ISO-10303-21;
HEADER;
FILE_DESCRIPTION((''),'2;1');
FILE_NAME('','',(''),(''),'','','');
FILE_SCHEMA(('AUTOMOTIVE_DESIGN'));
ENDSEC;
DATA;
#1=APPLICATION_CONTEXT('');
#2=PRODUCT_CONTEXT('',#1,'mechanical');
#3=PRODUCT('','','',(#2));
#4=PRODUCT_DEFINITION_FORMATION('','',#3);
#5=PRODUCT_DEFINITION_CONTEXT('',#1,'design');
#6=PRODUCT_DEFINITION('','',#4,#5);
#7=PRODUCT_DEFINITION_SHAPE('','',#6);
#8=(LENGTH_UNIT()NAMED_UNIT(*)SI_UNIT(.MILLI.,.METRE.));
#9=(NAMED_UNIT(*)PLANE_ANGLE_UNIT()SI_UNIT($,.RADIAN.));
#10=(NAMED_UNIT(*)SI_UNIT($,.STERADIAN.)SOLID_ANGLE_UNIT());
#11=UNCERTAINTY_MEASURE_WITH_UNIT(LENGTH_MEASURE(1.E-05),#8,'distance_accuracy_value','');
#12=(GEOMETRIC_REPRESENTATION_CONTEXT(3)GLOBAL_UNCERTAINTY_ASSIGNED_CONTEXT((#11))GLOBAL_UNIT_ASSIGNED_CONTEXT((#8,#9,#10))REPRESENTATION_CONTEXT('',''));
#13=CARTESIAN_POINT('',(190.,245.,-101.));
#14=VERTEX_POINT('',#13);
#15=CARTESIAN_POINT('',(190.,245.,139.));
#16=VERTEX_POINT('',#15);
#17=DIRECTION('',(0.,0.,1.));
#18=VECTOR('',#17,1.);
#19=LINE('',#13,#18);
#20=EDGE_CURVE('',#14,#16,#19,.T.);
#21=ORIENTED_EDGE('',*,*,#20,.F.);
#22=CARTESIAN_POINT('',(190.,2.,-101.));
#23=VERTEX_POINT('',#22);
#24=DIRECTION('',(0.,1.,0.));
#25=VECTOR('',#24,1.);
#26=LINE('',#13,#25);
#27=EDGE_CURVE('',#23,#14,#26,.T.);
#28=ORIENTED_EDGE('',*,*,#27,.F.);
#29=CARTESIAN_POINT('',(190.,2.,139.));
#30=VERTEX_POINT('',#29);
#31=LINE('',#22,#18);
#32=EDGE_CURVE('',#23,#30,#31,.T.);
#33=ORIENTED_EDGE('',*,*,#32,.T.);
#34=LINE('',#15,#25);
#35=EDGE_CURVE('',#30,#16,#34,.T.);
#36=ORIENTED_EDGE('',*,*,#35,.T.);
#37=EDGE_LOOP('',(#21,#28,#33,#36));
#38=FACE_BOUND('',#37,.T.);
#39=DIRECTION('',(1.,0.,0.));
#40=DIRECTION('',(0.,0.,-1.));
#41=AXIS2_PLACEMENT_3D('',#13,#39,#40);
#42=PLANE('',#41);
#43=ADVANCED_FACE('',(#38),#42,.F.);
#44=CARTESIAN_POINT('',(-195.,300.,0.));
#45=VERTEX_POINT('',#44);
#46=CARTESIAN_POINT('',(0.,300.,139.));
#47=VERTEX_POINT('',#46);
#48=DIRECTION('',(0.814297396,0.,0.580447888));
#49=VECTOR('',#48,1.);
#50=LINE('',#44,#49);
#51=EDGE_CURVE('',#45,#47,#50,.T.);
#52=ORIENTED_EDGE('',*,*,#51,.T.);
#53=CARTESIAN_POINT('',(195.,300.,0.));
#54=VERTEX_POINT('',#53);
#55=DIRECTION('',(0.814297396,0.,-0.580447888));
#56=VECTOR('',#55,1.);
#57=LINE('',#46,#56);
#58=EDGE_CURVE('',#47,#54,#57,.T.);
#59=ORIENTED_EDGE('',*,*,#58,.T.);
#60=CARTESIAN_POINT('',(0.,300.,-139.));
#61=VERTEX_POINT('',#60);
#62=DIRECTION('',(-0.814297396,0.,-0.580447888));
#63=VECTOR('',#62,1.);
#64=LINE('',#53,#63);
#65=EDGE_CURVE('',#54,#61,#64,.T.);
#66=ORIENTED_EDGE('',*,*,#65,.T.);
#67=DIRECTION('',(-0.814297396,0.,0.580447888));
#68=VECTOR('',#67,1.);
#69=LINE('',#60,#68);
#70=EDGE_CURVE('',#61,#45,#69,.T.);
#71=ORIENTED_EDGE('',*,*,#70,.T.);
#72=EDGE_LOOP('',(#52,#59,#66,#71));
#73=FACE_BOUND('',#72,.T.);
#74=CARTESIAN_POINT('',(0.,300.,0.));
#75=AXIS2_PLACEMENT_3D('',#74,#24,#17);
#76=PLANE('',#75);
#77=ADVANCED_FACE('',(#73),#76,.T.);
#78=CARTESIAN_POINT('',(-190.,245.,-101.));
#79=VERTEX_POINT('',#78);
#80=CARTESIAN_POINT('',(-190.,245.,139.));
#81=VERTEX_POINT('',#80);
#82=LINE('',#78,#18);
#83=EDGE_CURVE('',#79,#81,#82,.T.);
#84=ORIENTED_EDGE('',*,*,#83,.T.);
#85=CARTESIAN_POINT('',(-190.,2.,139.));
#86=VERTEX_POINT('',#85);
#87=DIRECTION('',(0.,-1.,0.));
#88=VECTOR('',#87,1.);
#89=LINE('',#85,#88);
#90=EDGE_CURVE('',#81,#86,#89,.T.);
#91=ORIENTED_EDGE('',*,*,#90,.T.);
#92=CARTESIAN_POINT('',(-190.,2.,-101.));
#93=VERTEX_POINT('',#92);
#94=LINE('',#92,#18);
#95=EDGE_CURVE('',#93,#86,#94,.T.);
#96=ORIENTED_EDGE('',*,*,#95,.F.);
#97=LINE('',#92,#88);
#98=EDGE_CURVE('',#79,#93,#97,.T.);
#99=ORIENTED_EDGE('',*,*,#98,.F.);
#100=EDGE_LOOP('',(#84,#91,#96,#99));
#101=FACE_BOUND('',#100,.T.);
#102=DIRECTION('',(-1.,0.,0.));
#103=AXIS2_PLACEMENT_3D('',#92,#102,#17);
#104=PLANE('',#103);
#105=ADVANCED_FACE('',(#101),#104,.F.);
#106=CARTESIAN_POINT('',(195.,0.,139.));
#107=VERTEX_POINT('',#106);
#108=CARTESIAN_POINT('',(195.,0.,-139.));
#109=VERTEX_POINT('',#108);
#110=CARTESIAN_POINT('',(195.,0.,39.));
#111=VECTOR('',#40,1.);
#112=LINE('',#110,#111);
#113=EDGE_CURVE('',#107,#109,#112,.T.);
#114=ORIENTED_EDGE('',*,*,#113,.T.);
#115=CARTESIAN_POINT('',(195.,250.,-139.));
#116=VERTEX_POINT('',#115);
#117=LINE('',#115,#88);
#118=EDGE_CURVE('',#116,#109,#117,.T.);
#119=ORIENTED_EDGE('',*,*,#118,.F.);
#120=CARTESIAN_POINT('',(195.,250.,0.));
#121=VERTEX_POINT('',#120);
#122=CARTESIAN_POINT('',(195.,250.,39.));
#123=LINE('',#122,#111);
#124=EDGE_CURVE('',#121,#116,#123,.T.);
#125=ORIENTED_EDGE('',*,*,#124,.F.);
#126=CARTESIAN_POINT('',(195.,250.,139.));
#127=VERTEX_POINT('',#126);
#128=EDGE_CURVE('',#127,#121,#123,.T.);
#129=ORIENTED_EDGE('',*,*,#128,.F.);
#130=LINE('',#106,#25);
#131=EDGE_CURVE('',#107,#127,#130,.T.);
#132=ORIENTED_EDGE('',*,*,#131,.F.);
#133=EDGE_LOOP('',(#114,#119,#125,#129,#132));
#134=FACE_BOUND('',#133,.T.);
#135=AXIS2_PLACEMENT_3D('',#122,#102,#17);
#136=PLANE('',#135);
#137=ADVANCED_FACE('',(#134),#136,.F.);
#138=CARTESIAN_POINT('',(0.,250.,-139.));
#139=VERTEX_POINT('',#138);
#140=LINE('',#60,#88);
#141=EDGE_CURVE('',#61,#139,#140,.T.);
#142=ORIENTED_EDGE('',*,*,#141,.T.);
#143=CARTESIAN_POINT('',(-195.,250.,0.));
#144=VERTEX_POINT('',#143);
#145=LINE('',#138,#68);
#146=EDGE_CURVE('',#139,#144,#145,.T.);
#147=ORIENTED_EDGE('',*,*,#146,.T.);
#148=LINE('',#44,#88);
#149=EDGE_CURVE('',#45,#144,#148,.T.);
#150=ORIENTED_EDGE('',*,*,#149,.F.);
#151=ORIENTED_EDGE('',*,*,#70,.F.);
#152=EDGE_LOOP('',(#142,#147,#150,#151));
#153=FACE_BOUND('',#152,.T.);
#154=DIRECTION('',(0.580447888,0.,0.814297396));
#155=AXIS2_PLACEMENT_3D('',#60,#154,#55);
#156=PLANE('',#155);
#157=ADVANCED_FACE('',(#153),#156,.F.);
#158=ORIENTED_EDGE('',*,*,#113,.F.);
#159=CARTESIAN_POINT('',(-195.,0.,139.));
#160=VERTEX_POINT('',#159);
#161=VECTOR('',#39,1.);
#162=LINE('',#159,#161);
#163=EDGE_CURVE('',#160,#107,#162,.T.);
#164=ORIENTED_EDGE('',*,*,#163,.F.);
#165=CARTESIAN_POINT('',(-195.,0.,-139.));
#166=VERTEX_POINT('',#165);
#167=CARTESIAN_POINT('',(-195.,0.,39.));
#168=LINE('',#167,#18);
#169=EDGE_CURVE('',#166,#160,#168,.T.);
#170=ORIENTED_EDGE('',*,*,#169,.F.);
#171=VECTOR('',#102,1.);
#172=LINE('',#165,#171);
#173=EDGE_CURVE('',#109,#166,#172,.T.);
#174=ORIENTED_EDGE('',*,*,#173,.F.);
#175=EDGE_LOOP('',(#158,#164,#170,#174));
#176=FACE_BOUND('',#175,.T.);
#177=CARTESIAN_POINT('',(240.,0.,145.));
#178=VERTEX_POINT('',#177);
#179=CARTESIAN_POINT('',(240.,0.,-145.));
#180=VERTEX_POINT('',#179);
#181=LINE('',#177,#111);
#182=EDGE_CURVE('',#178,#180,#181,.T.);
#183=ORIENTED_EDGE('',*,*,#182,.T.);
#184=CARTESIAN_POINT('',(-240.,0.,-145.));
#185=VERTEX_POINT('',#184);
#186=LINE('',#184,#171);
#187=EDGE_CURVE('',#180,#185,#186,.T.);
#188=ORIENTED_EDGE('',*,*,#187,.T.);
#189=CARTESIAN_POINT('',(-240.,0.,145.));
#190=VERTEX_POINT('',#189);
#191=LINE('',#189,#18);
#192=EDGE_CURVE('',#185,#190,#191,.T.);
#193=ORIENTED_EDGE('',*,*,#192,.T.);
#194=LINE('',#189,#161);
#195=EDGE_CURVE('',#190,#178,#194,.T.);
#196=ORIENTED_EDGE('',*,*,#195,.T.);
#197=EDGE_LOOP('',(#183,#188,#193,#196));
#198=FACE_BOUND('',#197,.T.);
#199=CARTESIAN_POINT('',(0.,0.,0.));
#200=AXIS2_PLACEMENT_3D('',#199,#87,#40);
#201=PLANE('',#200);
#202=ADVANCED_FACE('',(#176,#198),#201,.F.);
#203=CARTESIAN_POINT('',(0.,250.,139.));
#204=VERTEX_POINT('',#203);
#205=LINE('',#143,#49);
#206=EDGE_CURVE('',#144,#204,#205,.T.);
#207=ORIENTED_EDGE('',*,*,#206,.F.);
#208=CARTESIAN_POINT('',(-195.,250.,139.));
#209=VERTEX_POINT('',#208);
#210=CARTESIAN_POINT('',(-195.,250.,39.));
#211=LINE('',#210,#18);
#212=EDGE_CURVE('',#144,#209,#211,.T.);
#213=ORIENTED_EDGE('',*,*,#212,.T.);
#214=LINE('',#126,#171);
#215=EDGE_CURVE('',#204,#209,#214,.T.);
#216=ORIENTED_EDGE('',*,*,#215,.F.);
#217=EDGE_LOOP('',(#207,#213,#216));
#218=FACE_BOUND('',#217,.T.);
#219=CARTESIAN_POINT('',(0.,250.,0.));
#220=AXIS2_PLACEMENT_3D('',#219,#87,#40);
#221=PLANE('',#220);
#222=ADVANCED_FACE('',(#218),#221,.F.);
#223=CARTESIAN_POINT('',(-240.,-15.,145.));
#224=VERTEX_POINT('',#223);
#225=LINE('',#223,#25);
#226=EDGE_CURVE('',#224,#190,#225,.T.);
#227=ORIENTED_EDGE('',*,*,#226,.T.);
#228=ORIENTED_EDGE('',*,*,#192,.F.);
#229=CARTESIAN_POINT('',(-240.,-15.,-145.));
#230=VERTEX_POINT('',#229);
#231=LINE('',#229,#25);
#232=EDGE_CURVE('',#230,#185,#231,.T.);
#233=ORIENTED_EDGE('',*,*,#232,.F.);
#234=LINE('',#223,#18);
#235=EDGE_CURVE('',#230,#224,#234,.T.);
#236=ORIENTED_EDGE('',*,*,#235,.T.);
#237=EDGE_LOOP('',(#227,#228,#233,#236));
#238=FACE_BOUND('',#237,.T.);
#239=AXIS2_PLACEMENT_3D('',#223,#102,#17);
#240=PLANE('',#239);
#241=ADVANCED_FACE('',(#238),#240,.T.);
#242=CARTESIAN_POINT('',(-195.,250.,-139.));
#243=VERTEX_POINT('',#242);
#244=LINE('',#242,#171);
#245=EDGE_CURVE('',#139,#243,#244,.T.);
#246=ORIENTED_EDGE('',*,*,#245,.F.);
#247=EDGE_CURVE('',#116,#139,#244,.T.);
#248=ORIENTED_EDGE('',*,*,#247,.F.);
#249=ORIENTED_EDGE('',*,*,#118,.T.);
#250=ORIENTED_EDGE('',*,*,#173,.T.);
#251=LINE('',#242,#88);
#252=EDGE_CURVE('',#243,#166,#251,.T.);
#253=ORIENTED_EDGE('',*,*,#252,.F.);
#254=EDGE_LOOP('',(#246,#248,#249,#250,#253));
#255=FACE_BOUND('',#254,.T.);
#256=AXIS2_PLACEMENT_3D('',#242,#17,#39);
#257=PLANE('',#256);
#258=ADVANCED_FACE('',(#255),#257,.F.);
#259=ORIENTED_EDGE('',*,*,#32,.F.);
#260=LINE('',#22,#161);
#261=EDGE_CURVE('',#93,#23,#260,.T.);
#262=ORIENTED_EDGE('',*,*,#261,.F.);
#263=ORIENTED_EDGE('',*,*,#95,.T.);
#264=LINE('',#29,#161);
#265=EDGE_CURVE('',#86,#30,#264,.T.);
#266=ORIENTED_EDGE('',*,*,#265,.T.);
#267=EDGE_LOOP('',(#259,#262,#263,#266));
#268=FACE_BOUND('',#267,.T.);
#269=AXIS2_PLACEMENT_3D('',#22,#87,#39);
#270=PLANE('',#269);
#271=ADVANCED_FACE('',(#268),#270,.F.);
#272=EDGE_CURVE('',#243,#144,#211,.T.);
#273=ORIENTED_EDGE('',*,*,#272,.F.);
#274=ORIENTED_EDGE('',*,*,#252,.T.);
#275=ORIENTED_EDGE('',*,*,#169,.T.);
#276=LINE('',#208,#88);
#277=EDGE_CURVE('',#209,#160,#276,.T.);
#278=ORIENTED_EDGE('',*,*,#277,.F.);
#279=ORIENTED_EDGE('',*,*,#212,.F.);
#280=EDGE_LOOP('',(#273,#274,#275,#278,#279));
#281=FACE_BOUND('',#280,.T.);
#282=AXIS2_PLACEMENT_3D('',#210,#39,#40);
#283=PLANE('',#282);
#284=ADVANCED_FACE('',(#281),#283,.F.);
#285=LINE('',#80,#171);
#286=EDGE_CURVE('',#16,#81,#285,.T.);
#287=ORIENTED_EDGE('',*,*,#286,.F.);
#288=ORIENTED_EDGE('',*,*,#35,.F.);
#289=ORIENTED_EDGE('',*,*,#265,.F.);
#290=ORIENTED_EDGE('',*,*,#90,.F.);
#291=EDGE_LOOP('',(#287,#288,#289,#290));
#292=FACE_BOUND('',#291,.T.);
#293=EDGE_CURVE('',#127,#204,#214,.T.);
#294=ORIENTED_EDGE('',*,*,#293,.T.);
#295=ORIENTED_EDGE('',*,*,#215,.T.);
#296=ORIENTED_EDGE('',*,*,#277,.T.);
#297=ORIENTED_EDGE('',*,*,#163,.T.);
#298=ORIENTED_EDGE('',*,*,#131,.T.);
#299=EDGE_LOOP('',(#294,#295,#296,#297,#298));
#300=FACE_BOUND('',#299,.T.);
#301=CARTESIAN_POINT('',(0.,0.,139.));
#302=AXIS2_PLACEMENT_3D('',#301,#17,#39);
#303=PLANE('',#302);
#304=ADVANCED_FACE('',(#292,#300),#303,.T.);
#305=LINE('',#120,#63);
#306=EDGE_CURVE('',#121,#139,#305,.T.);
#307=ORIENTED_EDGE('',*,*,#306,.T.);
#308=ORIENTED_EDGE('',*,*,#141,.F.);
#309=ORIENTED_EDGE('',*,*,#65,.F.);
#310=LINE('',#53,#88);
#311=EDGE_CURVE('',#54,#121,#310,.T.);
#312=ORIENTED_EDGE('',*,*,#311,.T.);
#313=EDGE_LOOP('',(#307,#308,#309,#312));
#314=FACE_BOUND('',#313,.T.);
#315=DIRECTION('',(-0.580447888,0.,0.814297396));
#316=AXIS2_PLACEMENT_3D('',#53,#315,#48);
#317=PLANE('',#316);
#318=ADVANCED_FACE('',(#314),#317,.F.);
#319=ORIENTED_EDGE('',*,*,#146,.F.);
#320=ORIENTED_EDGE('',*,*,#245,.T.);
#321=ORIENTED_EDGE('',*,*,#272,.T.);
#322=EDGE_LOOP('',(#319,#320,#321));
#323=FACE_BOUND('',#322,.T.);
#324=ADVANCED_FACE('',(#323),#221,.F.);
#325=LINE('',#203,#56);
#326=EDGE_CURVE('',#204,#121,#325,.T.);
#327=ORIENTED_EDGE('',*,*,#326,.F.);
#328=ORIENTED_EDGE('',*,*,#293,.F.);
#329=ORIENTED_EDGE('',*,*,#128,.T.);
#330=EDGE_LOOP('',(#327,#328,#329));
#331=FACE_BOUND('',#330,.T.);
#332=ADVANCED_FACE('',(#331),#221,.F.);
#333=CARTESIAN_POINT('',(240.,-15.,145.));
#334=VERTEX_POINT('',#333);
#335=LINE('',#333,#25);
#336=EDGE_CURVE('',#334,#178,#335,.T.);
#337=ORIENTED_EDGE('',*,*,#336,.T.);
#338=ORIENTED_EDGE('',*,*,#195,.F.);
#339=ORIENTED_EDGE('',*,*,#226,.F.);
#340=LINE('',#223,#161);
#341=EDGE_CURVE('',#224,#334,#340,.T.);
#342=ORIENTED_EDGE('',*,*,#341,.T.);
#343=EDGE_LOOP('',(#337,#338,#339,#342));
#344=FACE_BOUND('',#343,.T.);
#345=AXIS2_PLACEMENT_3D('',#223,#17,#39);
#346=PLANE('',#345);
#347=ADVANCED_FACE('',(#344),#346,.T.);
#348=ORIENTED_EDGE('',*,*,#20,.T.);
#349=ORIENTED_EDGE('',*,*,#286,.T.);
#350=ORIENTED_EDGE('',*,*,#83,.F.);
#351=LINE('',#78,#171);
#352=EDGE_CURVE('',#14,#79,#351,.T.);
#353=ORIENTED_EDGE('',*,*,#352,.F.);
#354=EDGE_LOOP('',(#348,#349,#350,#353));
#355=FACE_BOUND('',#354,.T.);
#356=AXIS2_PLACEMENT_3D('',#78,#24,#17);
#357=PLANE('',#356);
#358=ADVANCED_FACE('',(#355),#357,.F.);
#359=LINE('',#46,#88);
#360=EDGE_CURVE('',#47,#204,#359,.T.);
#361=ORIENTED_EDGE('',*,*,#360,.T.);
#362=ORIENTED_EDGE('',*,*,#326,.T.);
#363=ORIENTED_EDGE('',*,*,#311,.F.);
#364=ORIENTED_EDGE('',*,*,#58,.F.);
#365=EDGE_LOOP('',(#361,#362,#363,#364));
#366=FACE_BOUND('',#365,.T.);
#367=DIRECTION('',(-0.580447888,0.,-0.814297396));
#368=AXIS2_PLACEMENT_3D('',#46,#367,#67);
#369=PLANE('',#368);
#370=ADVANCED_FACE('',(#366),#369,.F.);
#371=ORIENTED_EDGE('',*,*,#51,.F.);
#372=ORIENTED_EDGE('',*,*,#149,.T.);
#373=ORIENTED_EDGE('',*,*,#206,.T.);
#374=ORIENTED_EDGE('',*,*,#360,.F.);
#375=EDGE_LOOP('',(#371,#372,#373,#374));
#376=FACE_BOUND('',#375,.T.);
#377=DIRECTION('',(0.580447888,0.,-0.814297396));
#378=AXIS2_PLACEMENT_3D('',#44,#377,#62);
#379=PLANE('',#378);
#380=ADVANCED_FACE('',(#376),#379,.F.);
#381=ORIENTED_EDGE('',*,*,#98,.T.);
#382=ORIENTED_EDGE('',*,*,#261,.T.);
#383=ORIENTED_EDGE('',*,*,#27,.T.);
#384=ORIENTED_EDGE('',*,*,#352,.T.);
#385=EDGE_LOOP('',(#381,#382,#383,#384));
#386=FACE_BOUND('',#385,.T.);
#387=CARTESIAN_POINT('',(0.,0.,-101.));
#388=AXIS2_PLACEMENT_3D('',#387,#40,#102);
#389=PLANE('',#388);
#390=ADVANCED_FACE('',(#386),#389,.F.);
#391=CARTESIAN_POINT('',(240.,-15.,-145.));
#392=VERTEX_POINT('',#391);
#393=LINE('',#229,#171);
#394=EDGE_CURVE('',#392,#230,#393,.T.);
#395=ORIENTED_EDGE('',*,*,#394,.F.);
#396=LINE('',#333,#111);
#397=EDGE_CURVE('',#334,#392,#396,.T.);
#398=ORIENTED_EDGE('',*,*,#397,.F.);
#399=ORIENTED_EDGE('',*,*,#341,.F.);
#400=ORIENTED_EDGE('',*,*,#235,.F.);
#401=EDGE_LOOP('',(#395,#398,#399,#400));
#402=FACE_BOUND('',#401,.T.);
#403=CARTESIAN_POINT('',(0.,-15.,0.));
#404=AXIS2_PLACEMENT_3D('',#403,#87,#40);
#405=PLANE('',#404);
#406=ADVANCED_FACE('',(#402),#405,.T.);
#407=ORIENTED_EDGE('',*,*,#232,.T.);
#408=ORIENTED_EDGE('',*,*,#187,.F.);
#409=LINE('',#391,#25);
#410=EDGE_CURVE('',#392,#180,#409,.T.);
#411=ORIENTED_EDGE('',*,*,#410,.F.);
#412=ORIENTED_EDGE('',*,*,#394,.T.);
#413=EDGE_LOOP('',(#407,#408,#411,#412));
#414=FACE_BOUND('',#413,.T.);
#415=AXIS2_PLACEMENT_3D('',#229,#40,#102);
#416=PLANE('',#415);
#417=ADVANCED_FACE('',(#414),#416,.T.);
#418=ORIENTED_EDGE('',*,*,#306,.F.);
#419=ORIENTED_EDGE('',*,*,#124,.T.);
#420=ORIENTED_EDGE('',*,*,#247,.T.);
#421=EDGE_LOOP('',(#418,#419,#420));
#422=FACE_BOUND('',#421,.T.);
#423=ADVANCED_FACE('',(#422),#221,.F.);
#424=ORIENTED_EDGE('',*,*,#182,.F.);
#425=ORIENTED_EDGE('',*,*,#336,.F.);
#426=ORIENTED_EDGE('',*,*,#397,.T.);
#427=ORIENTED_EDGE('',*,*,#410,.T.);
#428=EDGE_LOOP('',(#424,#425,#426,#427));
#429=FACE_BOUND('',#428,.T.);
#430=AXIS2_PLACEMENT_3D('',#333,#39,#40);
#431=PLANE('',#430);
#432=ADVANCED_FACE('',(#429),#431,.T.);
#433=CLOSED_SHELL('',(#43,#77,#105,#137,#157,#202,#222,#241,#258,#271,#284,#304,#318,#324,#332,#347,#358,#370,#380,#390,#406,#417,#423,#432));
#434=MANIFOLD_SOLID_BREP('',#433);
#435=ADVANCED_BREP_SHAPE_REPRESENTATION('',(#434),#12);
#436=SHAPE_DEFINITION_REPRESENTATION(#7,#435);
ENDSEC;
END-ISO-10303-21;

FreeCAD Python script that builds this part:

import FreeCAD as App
import Part
import Sketcher

V = App.Vector
Q = App.Units.Quantity

doc = App.newDocument("Part")
body = doc.addObject("PartDesign::Body", "Body")

# Sketch on XZ plane
sketch1 = body.newObject("Sketcher::SketchObject", "Sketch")
sketch1.AttachmentSupport = (doc.getObject("XZ_Plane"), [""])
sketch1.MapMode = "FlatFace"
sketch1.addGeometry([
    Part.LineSegment(V(-240, -145, 0), V(-240, 145, 0)),
    Part.LineSegment(V(-240, 145, 0), V(240, 145, 0)),
    Part.LineSegment(V(240, 145, 0), V(240, -145, 0)),
    Part.LineSegment(V(240, -145, 0), V(-240, -145, 0)),
], False)
sketch1.addConstraint([
    Sketcher.Constraint("Coincident", 0, 2, 1, 1),
    Sketcher.Constraint("Coincident", 1, 2, 2, 1),
    Sketcher.Constraint("Coincident", 2, 2, 3, 1),
    Sketcher.Constraint("Coincident", 3, 2, 0, 1),
    Sketcher.Constraint("Vertical", 0),
    Sketcher.Constraint("Horizontal", 1),
    Sketcher.Constraint("Vertical", 2),
    Sketcher.Constraint("Horizontal", 3),
    Sketcher.Constraint("Symmetric", 0, 2, 2, 2, -1, 1),
    Sketcher.Constraint("DistanceX", 1, 1, 1, 2, Q("480 mm")),
    Sketcher.Constraint("DistanceY", 0, 1, 0, 2, Q("290 mm")),
])
pad1 = body.newObject("PartDesign::Pad", "Pad")
pad1.Profile = sketch1
pad1.Length = 15

# Sketch on XZ plane
sketch2 = body.newObject("Sketcher::SketchObject", "Sketch001")
sketch2.AttachmentSupport = (doc.getObject("XZ_Plane"), [""])
sketch2.MapMode = "FlatFace"
sketch2.addGeometry([
    Part.LineSegment(V(-195, -139, 0), V(-195, 39, 0)),
    Part.LineSegment(V(-195, 39, 0), V(195, 39, 0)),
    Part.LineSegment(V(195, 39, 0), V(195, -139, 0)),
    Part.LineSegment(V(195, -139, 0), V(-195, -139, 0)),
], False)
sketch2.addConstraint([
    Sketcher.Constraint("Coincident", 0, 2, 1, 1),
    Sketcher.Constraint("Coincident", 1, 2, 2, 1),
    Sketcher.Constraint("Coincident", 2, 2, 3, 1),
    Sketcher.Constraint("Coincident", 3, 2, 0, 1),
    Sketcher.Constraint("Vertical", 0),
    Sketcher.Constraint("Horizontal", 1),
    Sketcher.Constraint("Vertical", 2),
    Sketcher.Constraint("Horizontal", 3),
    Sketcher.Constraint("DistanceX", 1, 1, 1, 2, Q("390 mm")),
    Sketcher.Constraint("DistanceY", 0, 1, 0, 2, Q("178 mm")),
    Sketcher.Constraint("DistanceX", 0, 2, -1, 1, Q("195 mm")),
    Sketcher.Constraint("DistanceY", -1, 1, 0, 2, Q("39 mm")),
])
pad2 = body.newObject("PartDesign::Pad", "Pad001")
pad2.Profile = sketch2
pad2.Length = 250
pad2.Reversed = True

# Sketch on XY plane
sketch3 = body.newObject("Sketcher::SketchObject", "Sketch002")
sketch3.AttachmentSupport = (doc.getObject("XY_Plane"), [""])
sketch3.MapMode = "FlatFace"
sketch3.AttachmentOffset = App.Placement(V(0, 0, 39), App.Rotation())
sketch3.addGeometry([
    Part.LineSegment(V(-195, 250, 0), V(-195, 0, 0)),
    Part.LineSegment(V(-195, 0, 0), V(195, 0, 0)),
    Part.LineSegment(V(195, 0, 0), V(195, 250, 0)),
    Part.LineSegment(V(195, 250, 0), V(-195, 250, 0)),
], False)
sketch3.addConstraint([
    Sketcher.Constraint("Coincident", 0, 2, 1, 1),
    Sketcher.Constraint("Coincident", 1, 2, 2, 1),
    Sketcher.Constraint("Coincident", 2, 2, 3, 1),
    Sketcher.Constraint("Coincident", 3, 2, 0, 1),
    Sketcher.Constraint("Vertical", 0),
    Sketcher.Constraint("Horizontal", 1),
    Sketcher.Constraint("Vertical", 2),
    Sketcher.Constraint("Horizontal", 3),
    Sketcher.Constraint("Symmetric", 0, 2, 1, 2, -1, 1),
    Sketcher.Constraint("DistanceX", 1, 1, 1, 2, Q("390 mm")),
    Sketcher.Constraint("DistanceY", 0, 2, 0, 1, Q("250 mm")),
])
pad3 = body.newObject("PartDesign::Pad", "Pad002")
pad3.Profile = sketch3
pad3.Length = 100

# Sketch on XY plane
sketch4 = body.newObject("Sketcher::SketchObject", "Sketch003")
sketch4.AttachmentSupport = (doc.getObject("XY_Plane"), [""])
sketch4.MapMode = "FlatFace"
sketch4.AttachmentOffset = App.Placement(V(0, 0, 139), App.Rotation())
sketch4.addGeometry([
    Part.LineSegment(V(-190, 245, 0), V(-190, 2, 0)),
    Part.LineSegment(V(-190, 2, 0), V(190, 2, 0)),
    Part.LineSegment(V(190, 2, 0), V(190, 245, 0)),
    Part.LineSegment(V(190, 245, 0), V(-190, 245, 0)),
], False)
sketch4.addConstraint([
    Sketcher.Constraint("Coincident", 0, 2, 1, 1),
    Sketcher.Constraint("Coincident", 1, 2, 2, 1),
    Sketcher.Constraint("Coincident", 2, 2, 3, 1),
    Sketcher.Constraint("Coincident", 3, 2, 0, 1),
    Sketcher.Constraint("Vertical", 0),
    Sketcher.Constraint("Horizontal", 1),
    Sketcher.Constraint("Vertical", 2),
    Sketcher.Constraint("Horizontal", 3),
    Sketcher.Constraint("DistanceX", 1, 1, 1, 2, Q("380 mm")),
    Sketcher.Constraint("DistanceY", 0, 2, 0, 1, Q("243 mm")),
    Sketcher.Constraint("DistanceX", 0, 2, -1, 1, Q("190 mm")),
    Sketcher.Constraint("DistanceY", -1, 1, 0, 2, Q("2 mm")),
])
pocket1 = body.newObject("PartDesign::Pocket", "Pocket")
pocket1.Profile = sketch4
pocket1.Length = 240

# Sketch on XZ plane
sketch5 = body.newObject("Sketcher::SketchObject", "Sketch004")
sketch5.AttachmentSupport = (doc.getObject("XZ_Plane"), [""])
sketch5.MapMode = "FlatFace"
sketch5.AttachmentOffset = App.Placement(V(0, 0, -250), App.Rotation())
sketch5.addGeometry([
    Part.LineSegment(V(0, -139, 0), V(-195, 0, 0)),
    Part.LineSegment(V(-195, 0, 0), V(0, 139, 0)),
    Part.LineSegment(V(0, 139, 0), V(195, 0, 0)),
    Part.LineSegment(V(195, 0, 0), V(0, -139, 0)),
], False)
sketch5.addConstraint([
    Sketcher.Constraint("Coincident", 0, 2, 1, 1),
    Sketcher.Constraint("Coincident", 1, 2, 2, 1),
    Sketcher.Constraint("Coincident", 2, 2, 3, 1),
    Sketcher.Constraint("Coincident", 3, 2, 0, 1),
    Sketcher.Constraint("Symmetric", 0, 2, 2, 2, -1, 1),
    Sketcher.Constraint("Symmetric", 1, 2, 3, 2, -1, 1),
    Sketcher.Constraint("PointOnObject", 0, 2, -1),
    Sketcher.Constraint("PointOnObject", 1, 2, -2),
    Sketcher.Constraint("DistanceX", 0, 2, -1, 1, Q("195 mm")),
    Sketcher.Constraint("DistanceY", -1, 1, 1, 2, Q("139 mm")),
])
pad4 = body.newObject("PartDesign::Pad", "Pad003")
pad4.Profile = sketch5
pad4.Length = 50
pad4.Reversed = True

doc.recompute()
